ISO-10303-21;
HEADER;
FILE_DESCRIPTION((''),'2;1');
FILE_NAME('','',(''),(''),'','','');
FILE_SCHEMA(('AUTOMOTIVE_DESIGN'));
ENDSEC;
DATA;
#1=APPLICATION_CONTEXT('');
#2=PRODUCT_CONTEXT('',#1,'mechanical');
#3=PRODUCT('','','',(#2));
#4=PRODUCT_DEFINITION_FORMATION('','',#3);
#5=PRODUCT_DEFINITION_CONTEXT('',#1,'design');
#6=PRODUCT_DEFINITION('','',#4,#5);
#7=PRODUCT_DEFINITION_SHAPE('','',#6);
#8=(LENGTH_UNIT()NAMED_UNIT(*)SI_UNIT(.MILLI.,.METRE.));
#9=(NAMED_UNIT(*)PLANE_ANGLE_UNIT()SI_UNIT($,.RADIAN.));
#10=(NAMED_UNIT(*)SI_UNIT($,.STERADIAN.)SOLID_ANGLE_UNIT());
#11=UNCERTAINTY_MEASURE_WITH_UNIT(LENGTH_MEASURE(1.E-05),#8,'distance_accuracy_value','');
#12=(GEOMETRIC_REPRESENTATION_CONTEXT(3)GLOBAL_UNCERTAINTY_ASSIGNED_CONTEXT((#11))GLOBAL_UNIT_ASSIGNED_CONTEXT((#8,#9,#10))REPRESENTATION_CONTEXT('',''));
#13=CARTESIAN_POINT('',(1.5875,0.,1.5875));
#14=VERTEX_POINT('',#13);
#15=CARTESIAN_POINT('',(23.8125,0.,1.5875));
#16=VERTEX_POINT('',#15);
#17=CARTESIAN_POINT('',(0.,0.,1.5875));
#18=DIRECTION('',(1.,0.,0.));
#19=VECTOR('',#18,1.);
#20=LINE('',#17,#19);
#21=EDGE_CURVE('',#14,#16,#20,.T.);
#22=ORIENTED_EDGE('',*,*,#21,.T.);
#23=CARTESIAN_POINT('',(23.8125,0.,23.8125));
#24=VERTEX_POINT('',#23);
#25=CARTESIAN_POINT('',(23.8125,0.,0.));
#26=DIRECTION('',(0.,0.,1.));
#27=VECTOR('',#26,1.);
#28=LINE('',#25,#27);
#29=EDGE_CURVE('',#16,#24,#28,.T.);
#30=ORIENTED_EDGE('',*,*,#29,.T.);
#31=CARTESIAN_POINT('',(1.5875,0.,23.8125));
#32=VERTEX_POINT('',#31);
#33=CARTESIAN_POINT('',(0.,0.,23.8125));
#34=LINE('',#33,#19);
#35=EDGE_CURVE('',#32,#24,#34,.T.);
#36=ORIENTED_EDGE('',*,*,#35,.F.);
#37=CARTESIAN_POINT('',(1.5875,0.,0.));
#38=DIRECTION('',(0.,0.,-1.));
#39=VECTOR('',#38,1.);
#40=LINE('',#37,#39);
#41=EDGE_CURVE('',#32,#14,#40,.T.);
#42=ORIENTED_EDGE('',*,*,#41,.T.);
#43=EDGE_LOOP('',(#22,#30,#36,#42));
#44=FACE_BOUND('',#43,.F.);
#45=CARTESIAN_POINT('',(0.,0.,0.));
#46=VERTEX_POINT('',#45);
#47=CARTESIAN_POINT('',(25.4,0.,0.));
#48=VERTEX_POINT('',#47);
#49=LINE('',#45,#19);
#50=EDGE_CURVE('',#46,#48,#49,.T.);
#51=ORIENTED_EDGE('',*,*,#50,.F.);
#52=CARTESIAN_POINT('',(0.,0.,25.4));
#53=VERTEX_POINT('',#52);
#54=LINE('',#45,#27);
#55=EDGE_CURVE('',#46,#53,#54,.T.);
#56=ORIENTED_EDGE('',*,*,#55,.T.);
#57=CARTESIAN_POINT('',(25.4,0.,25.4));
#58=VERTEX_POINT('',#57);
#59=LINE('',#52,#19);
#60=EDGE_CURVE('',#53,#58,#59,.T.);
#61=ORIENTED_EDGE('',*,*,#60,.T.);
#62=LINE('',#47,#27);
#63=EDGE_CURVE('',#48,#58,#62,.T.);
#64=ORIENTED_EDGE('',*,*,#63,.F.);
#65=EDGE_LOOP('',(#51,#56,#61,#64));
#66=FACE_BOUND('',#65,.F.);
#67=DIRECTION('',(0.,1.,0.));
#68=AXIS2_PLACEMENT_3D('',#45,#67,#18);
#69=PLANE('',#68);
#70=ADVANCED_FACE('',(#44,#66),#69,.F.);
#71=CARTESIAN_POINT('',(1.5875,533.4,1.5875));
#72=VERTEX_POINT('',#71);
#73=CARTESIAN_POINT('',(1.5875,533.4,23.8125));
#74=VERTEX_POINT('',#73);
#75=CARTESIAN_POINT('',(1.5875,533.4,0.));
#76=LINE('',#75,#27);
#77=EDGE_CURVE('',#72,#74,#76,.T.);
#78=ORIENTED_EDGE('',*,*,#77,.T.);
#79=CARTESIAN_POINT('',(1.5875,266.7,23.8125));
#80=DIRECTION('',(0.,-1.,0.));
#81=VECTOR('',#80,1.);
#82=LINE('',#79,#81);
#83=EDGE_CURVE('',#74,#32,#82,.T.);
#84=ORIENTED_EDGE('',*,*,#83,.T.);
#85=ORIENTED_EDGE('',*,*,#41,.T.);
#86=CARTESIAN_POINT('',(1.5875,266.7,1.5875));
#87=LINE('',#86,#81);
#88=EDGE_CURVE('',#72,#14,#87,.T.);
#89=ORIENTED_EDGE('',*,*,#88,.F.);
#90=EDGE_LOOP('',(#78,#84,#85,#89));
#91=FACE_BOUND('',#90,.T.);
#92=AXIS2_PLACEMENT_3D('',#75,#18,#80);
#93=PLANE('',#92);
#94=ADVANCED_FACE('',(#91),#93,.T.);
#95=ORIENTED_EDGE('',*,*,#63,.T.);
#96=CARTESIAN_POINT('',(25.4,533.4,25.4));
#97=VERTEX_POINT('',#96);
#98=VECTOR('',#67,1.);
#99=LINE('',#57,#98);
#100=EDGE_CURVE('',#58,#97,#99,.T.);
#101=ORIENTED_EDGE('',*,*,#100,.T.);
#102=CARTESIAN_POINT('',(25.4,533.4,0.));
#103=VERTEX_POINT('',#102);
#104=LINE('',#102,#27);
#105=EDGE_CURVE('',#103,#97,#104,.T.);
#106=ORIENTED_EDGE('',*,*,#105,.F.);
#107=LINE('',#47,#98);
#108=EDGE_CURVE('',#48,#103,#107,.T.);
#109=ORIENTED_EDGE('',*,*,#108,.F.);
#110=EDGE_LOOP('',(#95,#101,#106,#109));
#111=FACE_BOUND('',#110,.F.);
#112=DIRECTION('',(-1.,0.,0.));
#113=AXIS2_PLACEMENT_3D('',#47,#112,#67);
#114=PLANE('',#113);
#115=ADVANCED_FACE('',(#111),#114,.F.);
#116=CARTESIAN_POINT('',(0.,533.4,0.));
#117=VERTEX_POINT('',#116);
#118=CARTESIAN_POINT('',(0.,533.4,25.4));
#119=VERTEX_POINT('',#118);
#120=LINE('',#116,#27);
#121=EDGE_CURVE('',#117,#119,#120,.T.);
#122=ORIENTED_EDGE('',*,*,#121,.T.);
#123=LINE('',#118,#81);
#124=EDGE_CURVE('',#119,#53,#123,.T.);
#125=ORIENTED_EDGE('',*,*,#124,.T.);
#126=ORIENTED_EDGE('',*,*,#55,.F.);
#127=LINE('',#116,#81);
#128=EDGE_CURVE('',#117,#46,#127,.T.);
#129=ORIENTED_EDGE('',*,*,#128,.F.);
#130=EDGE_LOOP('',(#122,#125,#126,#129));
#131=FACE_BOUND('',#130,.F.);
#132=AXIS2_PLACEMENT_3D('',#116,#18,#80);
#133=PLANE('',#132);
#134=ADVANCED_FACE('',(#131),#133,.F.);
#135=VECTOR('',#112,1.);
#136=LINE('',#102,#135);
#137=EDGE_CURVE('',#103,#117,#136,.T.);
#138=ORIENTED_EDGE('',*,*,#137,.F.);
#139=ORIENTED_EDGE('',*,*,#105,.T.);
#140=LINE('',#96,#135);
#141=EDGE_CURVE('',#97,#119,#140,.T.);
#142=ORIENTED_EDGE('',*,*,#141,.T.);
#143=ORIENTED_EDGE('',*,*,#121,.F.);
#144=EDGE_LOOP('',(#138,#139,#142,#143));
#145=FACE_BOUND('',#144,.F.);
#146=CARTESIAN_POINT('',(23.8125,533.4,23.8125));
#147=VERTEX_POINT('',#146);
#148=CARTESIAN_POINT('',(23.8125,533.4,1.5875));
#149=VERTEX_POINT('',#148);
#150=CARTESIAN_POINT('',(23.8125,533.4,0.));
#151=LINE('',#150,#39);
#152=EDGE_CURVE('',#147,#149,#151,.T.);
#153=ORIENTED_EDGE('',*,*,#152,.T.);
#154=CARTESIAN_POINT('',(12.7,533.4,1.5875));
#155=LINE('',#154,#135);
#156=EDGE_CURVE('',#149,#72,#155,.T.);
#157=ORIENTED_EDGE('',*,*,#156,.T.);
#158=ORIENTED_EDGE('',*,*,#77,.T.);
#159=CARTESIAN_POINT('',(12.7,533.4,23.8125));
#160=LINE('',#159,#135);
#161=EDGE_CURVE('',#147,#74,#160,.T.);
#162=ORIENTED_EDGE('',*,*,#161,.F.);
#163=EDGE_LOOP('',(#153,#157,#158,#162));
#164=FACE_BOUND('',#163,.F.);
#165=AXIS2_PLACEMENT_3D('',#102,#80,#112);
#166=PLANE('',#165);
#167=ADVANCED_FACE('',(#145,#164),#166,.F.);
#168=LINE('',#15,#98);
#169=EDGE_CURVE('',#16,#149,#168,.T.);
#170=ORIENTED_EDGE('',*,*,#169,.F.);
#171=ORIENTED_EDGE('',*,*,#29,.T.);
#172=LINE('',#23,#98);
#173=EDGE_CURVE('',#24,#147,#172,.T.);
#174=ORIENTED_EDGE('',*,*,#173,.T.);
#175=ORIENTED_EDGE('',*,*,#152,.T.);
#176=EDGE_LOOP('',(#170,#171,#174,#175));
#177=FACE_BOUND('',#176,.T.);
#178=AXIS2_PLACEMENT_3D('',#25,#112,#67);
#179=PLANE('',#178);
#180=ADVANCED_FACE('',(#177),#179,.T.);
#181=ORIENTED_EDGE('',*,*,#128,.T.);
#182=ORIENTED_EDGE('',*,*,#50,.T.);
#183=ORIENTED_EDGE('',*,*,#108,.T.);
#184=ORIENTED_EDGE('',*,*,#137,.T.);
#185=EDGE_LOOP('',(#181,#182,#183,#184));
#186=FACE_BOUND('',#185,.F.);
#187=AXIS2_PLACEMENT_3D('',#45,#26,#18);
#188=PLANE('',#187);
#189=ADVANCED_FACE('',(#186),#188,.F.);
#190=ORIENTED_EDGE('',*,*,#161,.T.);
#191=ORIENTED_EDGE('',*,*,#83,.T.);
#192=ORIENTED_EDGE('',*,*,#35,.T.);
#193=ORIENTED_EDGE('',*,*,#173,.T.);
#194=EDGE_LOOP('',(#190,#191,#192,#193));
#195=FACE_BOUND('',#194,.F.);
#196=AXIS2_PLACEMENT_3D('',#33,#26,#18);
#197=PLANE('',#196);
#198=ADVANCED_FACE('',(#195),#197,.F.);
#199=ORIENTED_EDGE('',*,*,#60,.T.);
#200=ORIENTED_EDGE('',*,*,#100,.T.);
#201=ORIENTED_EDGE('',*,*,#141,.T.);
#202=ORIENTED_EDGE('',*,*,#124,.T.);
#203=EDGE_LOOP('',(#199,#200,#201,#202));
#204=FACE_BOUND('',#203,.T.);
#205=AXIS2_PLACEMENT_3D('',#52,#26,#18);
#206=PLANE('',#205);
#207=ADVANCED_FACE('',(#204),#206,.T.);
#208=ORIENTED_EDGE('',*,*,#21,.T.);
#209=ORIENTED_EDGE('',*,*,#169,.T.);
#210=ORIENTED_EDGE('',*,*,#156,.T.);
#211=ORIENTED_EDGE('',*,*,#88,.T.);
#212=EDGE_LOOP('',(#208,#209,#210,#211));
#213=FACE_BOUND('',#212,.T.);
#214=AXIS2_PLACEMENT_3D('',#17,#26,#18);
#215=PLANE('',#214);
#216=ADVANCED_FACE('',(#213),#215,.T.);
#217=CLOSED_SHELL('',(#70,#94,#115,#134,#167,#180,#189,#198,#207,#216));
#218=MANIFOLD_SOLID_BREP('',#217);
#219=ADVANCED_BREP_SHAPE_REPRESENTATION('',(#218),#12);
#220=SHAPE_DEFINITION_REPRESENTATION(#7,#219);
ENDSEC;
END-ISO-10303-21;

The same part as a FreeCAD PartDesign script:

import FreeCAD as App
import Part
import Sketcher

V = App.Vector
Q = App.Units.Quantity


def faces_at(feature, points):
    """Names of the faces that lie closest to the given points."""
    faces = feature.Shape.Faces
    near = lambda p: min(range(len(faces)), key=lambda i: faces[i].distToShape(Part.Vertex(*p))[0])
    return sorted({f"Face{near(p) + 1}" for p in points})


def add_polygon(sketch, points):
    """Adds a closed chain of lines whose ends are joined by coincident constraints."""
    first, n = sketch.GeometryCount, len(points)
    for a, b in zip(points, points[1:] + points[:1]):
        sketch.addGeometry(Part.LineSegment(App.Vector(*a, 0), App.Vector(*b, 0)), False)
    for i in range(n):
        sketch.addConstraint(Sketcher.Constraint("Coincident", first + i, 2, first + (i + 1) % n, 1))

doc = App.newDocument("Part")
body = doc.addObject("PartDesign::Body", "Body")

sketch1 = body.newObject("Sketcher::SketchObject", "Sketch")
sketch1.AttachmentSupport = (doc.getObject("XY_Plane"), [""])
sketch1.MapMode = "FlatFace"
add_polygon(sketch1, [(0, 533.4), (0, 0), (25.4, 0), (25.4, 533.4)])
sketch1.addConstraint([
    Sketcher.Constraint("Vertical", 0),
    Sketcher.Constraint("Horizontal", 1),
    Sketcher.Constraint("Vertical", 2),
    Sketcher.Constraint("Horizontal", 3),
    Sketcher.Constraint("Coincident", 0, 2, -1, 1),
    Sketcher.Constraint("DistanceX", 1, 1, 1, 2, Q("1 in")),
    Sketcher.Constraint("DistanceY", 0, 2, 0, 1, Q("21 in")),
])
pad1 = body.newObject("PartDesign::Pad", "Pad")
pad1.Profile = sketch1
pad1.Length = Q("1 in")
doc.recompute()

thickness = body.newObject("PartDesign::Thickness", "Thickness")
thickness.Base = (pad1, faces_at(pad1, [(16.933, 533.4, 8.467), (8.467, 0, 8.467)]))
thickness.Value = Q("0.0625 in")
thickness.Reversed = True
thickness.Join = "Intersection"

doc.recompute()
